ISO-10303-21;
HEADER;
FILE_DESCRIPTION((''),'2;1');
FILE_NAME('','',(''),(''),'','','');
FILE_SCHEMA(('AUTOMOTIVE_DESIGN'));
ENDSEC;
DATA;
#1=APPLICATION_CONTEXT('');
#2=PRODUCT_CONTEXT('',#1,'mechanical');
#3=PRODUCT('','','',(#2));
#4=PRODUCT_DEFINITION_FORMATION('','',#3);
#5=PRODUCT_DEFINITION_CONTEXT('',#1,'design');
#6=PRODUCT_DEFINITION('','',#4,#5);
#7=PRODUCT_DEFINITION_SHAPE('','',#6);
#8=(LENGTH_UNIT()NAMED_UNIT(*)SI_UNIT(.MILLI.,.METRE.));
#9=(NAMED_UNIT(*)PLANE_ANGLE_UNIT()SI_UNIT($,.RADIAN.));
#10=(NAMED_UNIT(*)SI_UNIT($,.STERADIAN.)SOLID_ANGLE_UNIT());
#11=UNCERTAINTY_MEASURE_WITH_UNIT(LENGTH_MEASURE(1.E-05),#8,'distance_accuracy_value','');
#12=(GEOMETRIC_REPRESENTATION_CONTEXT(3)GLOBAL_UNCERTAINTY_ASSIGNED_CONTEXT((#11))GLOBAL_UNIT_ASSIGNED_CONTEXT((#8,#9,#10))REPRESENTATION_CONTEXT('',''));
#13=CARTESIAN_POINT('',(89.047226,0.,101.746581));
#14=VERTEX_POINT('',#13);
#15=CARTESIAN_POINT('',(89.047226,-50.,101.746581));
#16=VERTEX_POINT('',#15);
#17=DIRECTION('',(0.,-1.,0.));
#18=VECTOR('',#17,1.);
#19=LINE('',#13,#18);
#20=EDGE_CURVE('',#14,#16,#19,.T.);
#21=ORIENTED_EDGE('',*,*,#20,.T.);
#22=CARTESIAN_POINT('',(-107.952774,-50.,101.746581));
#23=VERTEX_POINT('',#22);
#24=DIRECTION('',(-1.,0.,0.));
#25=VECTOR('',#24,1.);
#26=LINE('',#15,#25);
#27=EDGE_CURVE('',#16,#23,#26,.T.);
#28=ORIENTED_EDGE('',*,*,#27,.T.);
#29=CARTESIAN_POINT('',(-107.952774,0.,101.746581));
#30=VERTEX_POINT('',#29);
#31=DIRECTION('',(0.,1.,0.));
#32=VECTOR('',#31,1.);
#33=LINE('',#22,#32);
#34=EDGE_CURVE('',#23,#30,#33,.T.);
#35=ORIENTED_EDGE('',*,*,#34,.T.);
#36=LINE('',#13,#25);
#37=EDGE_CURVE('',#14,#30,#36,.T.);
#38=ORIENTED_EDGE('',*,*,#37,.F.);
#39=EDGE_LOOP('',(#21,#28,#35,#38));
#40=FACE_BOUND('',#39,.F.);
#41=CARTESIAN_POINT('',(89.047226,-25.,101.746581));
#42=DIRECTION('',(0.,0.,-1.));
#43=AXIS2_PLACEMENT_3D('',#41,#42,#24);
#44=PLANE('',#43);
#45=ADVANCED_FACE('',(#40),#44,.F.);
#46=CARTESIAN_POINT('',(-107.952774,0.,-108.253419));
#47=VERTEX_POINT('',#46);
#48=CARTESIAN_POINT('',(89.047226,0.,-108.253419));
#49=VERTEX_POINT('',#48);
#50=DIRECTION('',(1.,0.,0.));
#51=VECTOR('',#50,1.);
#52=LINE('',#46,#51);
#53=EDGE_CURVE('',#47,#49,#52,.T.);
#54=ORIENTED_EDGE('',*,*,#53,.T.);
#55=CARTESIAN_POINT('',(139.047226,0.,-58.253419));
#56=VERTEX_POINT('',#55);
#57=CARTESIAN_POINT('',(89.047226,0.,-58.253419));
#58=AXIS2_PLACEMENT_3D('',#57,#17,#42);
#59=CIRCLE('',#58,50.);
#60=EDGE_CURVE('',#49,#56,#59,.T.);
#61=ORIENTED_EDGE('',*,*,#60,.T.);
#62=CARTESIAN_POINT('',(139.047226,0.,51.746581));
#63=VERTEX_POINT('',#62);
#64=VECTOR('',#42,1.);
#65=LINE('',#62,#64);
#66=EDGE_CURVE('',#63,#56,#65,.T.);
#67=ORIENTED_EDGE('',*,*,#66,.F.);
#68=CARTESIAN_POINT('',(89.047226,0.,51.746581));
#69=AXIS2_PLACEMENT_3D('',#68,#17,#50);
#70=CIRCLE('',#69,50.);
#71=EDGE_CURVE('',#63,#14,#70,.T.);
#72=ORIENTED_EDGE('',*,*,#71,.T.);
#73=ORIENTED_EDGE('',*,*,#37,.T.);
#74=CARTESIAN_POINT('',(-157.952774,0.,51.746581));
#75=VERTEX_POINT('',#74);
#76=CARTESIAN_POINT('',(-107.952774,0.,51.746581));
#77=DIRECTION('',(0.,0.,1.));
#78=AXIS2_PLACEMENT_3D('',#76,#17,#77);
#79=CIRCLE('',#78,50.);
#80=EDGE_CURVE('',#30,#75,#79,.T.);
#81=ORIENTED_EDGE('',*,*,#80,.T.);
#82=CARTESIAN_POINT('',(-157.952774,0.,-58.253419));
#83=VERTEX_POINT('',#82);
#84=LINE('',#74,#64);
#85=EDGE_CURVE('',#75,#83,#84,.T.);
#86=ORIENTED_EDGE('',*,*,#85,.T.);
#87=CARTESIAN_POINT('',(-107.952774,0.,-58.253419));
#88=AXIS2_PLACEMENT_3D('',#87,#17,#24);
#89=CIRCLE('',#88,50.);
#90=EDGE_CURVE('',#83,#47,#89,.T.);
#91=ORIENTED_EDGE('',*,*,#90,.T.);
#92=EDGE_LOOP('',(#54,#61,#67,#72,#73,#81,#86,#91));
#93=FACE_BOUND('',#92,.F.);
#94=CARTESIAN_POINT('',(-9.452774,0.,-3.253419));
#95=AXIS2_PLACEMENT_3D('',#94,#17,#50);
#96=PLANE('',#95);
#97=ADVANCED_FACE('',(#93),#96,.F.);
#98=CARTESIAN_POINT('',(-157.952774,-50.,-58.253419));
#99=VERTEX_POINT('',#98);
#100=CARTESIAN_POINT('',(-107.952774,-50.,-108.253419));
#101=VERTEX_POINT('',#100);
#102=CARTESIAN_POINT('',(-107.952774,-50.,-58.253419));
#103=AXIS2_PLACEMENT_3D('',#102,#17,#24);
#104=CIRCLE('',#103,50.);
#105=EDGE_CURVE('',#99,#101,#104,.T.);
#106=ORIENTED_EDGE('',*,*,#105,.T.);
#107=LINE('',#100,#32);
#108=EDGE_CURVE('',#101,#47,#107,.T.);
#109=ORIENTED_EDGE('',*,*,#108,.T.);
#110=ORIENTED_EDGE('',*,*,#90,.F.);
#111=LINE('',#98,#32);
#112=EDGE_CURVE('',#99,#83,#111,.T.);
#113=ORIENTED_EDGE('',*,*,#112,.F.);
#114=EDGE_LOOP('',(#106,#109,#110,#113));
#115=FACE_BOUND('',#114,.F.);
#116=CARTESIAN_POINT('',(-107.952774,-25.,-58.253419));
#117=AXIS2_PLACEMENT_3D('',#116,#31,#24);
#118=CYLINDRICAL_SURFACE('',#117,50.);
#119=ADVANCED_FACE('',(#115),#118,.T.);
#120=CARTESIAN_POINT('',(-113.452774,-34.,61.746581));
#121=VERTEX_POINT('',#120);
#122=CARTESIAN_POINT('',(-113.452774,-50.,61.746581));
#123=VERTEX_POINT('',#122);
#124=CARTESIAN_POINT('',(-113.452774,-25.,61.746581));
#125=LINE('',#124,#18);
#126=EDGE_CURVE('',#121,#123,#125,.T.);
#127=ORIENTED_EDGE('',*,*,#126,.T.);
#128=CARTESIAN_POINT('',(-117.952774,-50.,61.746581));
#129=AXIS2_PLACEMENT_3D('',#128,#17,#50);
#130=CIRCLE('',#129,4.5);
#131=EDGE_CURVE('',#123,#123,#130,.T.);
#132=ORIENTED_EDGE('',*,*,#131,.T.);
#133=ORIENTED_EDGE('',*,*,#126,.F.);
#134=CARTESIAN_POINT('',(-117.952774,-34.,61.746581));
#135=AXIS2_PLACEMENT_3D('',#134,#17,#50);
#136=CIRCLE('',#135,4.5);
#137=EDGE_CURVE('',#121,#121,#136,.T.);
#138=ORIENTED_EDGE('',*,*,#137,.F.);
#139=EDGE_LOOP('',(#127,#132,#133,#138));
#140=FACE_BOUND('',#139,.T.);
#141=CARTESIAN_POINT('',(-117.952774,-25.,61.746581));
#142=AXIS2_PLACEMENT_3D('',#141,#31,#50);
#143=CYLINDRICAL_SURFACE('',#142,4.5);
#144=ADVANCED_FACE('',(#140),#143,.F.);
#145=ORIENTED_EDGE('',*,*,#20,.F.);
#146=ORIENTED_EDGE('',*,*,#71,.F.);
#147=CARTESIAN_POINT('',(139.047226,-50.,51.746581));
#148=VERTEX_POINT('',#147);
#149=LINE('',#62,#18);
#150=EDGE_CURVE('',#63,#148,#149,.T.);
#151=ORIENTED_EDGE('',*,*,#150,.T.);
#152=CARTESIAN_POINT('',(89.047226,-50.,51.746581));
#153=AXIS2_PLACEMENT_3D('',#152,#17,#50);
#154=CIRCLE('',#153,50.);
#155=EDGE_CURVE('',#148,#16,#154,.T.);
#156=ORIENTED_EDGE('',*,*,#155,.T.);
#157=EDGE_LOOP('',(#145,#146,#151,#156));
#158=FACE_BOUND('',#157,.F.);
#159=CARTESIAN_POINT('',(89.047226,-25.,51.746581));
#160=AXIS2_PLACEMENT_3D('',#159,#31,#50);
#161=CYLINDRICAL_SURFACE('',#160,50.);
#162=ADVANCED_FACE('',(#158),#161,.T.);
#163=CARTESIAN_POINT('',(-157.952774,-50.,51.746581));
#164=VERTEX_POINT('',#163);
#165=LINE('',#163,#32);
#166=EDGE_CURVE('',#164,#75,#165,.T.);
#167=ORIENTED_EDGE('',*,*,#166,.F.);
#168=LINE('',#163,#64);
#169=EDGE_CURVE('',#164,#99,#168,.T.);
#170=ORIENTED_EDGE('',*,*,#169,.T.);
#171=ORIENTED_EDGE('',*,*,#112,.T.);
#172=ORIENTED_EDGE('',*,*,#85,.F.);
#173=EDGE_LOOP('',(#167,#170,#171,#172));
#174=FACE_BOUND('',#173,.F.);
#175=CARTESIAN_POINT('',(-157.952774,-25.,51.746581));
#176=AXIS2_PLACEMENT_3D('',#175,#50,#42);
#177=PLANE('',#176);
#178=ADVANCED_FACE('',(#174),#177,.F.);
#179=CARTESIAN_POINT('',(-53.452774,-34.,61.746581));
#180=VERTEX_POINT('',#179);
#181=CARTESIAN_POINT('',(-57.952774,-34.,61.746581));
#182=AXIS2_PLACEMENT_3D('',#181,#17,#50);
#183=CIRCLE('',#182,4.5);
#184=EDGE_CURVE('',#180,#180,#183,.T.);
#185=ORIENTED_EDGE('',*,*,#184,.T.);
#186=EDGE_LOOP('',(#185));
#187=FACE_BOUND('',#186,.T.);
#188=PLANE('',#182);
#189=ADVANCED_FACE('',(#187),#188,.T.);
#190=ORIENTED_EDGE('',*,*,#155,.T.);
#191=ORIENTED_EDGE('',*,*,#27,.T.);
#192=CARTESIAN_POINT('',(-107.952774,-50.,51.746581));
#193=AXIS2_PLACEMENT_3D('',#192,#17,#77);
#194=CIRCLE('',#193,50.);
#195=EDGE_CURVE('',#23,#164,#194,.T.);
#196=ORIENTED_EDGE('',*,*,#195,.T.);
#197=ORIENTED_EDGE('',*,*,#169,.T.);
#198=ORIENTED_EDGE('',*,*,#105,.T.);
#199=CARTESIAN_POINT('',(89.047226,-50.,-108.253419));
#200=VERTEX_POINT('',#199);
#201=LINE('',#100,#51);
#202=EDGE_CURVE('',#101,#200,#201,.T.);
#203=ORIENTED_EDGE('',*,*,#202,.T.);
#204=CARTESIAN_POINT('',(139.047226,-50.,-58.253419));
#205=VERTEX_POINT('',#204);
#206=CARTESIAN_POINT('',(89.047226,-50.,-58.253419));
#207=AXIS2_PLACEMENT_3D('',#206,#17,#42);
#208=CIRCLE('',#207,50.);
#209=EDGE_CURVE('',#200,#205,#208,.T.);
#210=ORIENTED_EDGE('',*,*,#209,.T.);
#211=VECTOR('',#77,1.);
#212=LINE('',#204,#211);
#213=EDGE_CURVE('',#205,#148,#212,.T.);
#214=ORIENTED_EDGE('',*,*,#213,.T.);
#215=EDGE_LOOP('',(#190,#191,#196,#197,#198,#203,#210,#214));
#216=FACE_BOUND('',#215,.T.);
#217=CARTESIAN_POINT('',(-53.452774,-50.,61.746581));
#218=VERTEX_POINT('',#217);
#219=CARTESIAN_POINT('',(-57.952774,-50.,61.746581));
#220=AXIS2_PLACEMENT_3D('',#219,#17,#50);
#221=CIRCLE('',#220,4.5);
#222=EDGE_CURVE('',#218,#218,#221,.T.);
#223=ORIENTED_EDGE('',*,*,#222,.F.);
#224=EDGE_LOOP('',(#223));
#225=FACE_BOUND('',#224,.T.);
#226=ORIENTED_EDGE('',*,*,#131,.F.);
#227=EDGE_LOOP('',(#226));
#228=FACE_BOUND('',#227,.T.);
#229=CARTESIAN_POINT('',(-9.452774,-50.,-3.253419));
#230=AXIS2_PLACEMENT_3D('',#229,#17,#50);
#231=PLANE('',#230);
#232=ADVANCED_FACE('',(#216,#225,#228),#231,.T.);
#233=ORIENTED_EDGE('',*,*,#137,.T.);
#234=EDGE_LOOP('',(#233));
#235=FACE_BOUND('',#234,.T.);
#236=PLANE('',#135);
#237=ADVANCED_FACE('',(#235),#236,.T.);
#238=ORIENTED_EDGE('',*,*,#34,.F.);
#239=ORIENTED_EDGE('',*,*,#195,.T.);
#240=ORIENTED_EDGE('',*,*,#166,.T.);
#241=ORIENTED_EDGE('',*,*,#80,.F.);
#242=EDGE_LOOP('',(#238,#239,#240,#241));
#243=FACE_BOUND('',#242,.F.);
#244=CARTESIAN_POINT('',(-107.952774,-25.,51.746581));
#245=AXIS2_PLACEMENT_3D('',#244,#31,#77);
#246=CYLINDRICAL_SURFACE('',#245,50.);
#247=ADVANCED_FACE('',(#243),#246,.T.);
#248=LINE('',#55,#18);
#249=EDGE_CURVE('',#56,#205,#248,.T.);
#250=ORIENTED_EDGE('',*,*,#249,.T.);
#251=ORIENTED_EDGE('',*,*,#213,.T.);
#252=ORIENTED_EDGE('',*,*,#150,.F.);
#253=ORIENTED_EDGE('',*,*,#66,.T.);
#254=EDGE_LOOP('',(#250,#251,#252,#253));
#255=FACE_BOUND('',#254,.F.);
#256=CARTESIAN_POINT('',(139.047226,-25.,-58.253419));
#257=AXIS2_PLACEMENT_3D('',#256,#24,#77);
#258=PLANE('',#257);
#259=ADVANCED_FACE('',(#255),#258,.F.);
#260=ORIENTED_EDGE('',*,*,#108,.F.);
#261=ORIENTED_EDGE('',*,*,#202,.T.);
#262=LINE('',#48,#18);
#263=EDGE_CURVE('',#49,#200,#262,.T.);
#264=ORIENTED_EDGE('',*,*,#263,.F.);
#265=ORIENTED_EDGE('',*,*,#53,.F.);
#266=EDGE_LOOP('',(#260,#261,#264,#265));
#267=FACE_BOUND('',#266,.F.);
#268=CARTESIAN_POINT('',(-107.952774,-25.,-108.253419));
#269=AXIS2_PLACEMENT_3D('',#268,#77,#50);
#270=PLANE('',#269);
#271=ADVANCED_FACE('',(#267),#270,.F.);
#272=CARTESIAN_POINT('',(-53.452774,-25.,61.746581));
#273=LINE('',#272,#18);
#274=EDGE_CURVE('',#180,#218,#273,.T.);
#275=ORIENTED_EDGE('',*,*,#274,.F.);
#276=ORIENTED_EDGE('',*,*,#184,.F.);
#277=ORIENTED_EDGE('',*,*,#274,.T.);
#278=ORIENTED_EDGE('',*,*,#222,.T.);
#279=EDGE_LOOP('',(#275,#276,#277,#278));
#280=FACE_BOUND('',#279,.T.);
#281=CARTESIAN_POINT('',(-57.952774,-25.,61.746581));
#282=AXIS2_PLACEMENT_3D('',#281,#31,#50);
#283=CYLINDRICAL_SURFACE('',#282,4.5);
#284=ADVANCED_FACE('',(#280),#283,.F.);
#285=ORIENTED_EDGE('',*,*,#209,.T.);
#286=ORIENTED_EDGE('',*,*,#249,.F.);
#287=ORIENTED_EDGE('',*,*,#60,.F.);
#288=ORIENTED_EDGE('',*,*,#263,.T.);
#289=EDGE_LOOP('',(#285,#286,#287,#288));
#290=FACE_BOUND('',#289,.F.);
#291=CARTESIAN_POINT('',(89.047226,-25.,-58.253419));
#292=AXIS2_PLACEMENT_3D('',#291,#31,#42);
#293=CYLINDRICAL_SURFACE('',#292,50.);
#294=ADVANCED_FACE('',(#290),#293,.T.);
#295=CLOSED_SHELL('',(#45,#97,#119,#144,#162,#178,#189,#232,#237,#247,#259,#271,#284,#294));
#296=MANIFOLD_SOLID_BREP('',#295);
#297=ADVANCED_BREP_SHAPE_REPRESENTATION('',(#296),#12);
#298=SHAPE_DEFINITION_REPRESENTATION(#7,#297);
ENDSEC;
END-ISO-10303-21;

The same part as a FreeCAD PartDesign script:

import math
import FreeCAD as App
import Part
import Sketcher
from FreeCAD import Vector
Q = App.Units.Quantity

doc = App.newDocument("Part")
body = doc.addObject("PartDesign::Body", "Body")

# Sketch on XZ plane
sketch1 = body.newObject("Sketcher::SketchObject", "Sketch")
sketch1.AttachmentSupport = (doc.getObject("XZ_Plane"), [""])
sketch1.MapMode = "FlatFace"
sketch1.addGeometry([
    Part.LineSegment(Vector(89, 102, 0), Vector(-108, 102, 0)),  # 0
    Part.ArcOfCircle(Part.Circle(Vector(-108, 52, 0), Vector(0, 0, 1), 50), math.radians(90), math.radians(180)),  # 1
    Part.LineSegment(Vector(-158, 52, 0), Vector(-158, -58, 0)),  # 2
    Part.ArcOfCircle(Part.Circle(Vector(-108, -58, 0), Vector(0, 0, 1), 50), math.radians(180), math.radians(270)),  # 3
    Part.LineSegment(Vector(-108, -108, 0), Vector(89, -108, 0)),  # 4
    Part.ArcOfCircle(Part.Circle(Vector(89, -58, 0), Vector(0, 0, 1), 50), math.radians(-90), math.radians(0)),  # 5
    Part.LineSegment(Vector(139, -58, 0), Vector(139, 52, 0)),  # 6
    Part.ArcOfCircle(Part.Circle(Vector(89, 52, 0), Vector(0, 0, 1), 50), math.radians(0), math.radians(90)),  # 7
], False)
sketch1.addConstraint([
    Sketcher.Constraint("Tangent", 0, 2, 1, 1),
    Sketcher.Constraint("Tangent", 1, 2, 2, 1),
    Sketcher.Constraint("Tangent", 2, 2, 3, 1),
    Sketcher.Constraint("Tangent", 3, 2, 4, 1),
    Sketcher.Constraint("Tangent", 4, 2, 5, 1),
    Sketcher.Constraint("Tangent", 5, 2, 6, 1),
    Sketcher.Constraint("Tangent", 6, 2, 7, 1),
    Sketcher.Constraint("Tangent", 7, 2, 0, 1),
    Sketcher.Constraint("Horizontal", 0),
    Sketcher.Constraint("Vertical", 2),
    Sketcher.Constraint("Horizontal", 4),
    Sketcher.Constraint("Vertical", 6),
    Sketcher.Constraint("Equal", 1, 3),
    Sketcher.Constraint("Equal", 3, 5),
    Sketcher.Constraint("Equal", 5, 7),
    Sketcher.Constraint("Radius", 1, Q("50 mm")),
    Sketcher.Constraint("DistanceX", 0, 2, 0, 1, Q("197 mm")),
    Sketcher.Constraint("DistanceY", 2, 2, 2, 1, Q("110 mm")),
    Sketcher.Constraint("DistanceY", -1, 1, 1, 3, Q("51.746581 mm")),
    Sketcher.Constraint("DistanceX", 1, 3, -1, 1, Q("107.952774 mm")),
])
pad1 = body.newObject("PartDesign::Pad", "Pad")
pad1.Profile = sketch1
pad1.Length = 9

# Sketch on XZ plane
sketch2 = body.newObject("Sketcher::SketchObject", "Sketch001")
sketch2.AttachmentSupport = (doc.getObject("XZ_Plane"), [""])
sketch2.MapMode = "FlatFace"
sketch2.AttachmentOffset = App.Placement(Vector(0, 0, 9), App.Rotation())
sketch2.addGeometry([
    Part.Circle(Vector(-118, 61.7, 0), Vector(0, 0, 1), 4.5),
    Part.Circle(Vector(-58, 61.7, 0), Vector(0, 0, 1), 4.5),
], False)
sketch2.addConstraint([
    Sketcher.Constraint("Equal", 0, 1),
    Sketcher.Constraint("Horizontal", 0, 3, 1, 3),
    Sketcher.Constraint("Diameter", 0, Q("9 mm")),
    Sketcher.Constraint("DistanceX", 0, 3, 1, 3, Q("60 mm")),
    Sketcher.Constraint("DistanceY", -1, 1, 0, 3, Q("61.746581 mm")),
    Sketcher.Constraint("DistanceX", 0, 3, -1, 1, Q("117.952774 mm")),
])
pad2 = body.newObject("PartDesign::Pad", "Pad001")
pad2.Profile = sketch2
pad2.Length = 25

# Sketch on XZ plane
sketch3 = body.newObject("Sketcher::SketchObject", "Sketch002")
sketch3.AttachmentSupport = (doc.getObject("XZ_Plane"), [""])
sketch3.MapMode = "FlatFace"
sketch3.AttachmentOffset = App.Placement(Vector(0, 0, 9), App.Rotation())
sketch3.addGeometry([
    Part.LineSegment(Vector(139, 57, 0), Vector(62, 57, 0)),  # 0
    Part.LineSegment(Vector(62, 57, 0), Vector(62, 26, 0)),  # 1
    Part.LineSegment(Vector(62, 26, 0), Vector(139, 26, 0)),  # 2
    Part.LineSegment(Vector(139, 26, 0), Vector(139, 52, 0)),  # 3
    Part.ArcOfCircle(Part.Circle(Vector(89, 52, 0), Vector(0, 0, 1), 50), math.radians(0), math.radians(6.01)),  # 4
], False)
sketch3.addConstraint([
    Sketcher.Constraint("Coincident", 0, 2, 1, 1),
    Sketcher.Constraint("Coincident", 1, 2, 2, 1),
    Sketcher.Constraint("Coincident", 2, 2, 3, 1),
    Sketcher.Constraint("Tangent", 3, 2, 4, 1),
    Sketcher.Constraint("Coincident", 4, 2, 0, 1),
    Sketcher.Constraint("Horizontal", 0),
    Sketcher.Constraint("Vertical", 1),
    Sketcher.Constraint("Horizontal", 2),
    Sketcher.Constraint("Vertical", 3),
    Sketcher.Constraint("Radius", 4, Q("50 mm")),
    Sketcher.Constraint("DistanceX", 0, 2, 0, 1, Q("77.216073 mm")),
    Sketcher.Constraint("DistanceX", 2, 1, 2, 2, Q("77.490548 mm")),
    Sketcher.Constraint("DistanceY", 1, 2, 1, 1, Q("30.802976 mm")),
    Sketcher.Constraint("DistanceY", -1, 1, 4, 3, Q("51.746581 mm")),
    Sketcher.Constraint("DistanceX", -1, 1, 0, 2, Q("61.556678 mm")),
])
pocket1 = body.newObject("PartDesign::Pocket", "Pocket")
pocket1.Profile = sketch3
pocket1.Length = 25

# Sketch on XZ plane
sketch4 = body.newObject("Sketcher::SketchObject", "Sketch003")
sketch4.AttachmentSupport = (doc.getObject("XZ_Plane"), [""])
sketch4.MapMode = "FlatFace"
sketch4.addGeometry([
    Part.ArcOfCircle(Part.Circle(Vector(89, 52, 0), Vector(0, 0, 1), 50), math.radians(0), math.radians(90)),  # 0
    Part.LineSegment(Vector(89, 102, 0), Vector(-108, 102, 0)),  # 1
    Part.ArcOfCircle(Part.Circle(Vector(-108, 52, 0), Vector(0, 0, 1), 50), math.radians(90), math.radians(180)),  # 2
    Part.LineSegment(Vector(-158, 52, 0), Vector(-158, -58, 0)),  # 3
    Part.ArcOfCircle(Part.Circle(Vector(-108, -58, 0), Vector(0, 0, 1), 50), math.radians(180), math.radians(270)),  # 4
    Part.LineSegment(Vector(-108, -108, 0), Vector(89, -108, 0)),  # 5
    Part.ArcOfCircle(Part.Circle(Vector(89, -58, 0), Vector(0, 0, 1), 50), math.radians(-90), math.radians(0)),  # 6
    Part.LineSegment(Vector(139, -58, 0), Vector(139, 52, 0)),  # 7
], False)
sketch4.addConstraint([
    Sketcher.Constraint("Tangent", 0, 2, 1, 1),
    Sketcher.Constraint("Tangent", 1, 2, 2, 1),
    Sketcher.Constraint("Tangent", 2, 2, 3, 1),
    Sketcher.Constraint("Tangent", 3, 2, 4, 1),
    Sketcher.Constraint("Tangent", 4, 2, 5, 1),
    Sketcher.Constraint("Tangent", 5, 2, 6, 1),
    Sketcher.Constraint("Tangent", 6, 2, 7, 1),
    Sketcher.Constraint("Tangent", 7, 2, 0, 1),
    Sketcher.Constraint("Horizontal", 1),
    Sketcher.Constraint("Vertical", 3),
    Sketcher.Constraint("Horizontal", 5),
    Sketcher.Constraint("Vertical", 7),
    Sketcher.Constraint("Equal", 0, 2),
    Sketcher.Constraint("Equal", 2, 4),
    Sketcher.Constraint("Equal", 4, 6),
    Sketcher.Constraint("Radius", 0, Q("50 mm")),
    Sketcher.Constraint("DistanceX", 1, 2, 1, 1, Q("197 mm")),
    Sketcher.Constraint("DistanceY", 3, 2, 3, 1, Q("110 mm")),
    Sketcher.Constraint("DistanceY", -1, 1, 0, 3, Q("51.746581 mm")),
    Sketcher.Constraint("DistanceX", -1, 1, 0, 3, Q("89.047226 mm")),
])
pad3 = body.newObject("PartDesign::Pad", "Pad002")
pad3.Profile = sketch4
pad3.Length = 25

# Sketch on XZ plane
sketch5 = body.newObject("Sketcher::SketchObject", "Sketch004")
sketch5.AttachmentSupport = (doc.getObject("XZ_Plane"), [""])
sketch5.MapMode = "FlatFace"
sketch5.AttachmentOffset = App.Placement(Vector(0, 0, 25), App.Rotation())
sketch5.addGeometry([
    Part.LineSegment(Vector(-108, -108.3, 0), Vector(89, -108.3, 0)),  # 0
    Part.ArcOfCircle(Part.Circle(Vector(89, -58.3, 0), Vector(0, 0, 1), 50), math.radians(-90), math.radians(0)),  # 1
    Part.LineSegment(Vector(139, -58.3, 0), Vector(139, 51.7, 0)),  # 2
    Part.ArcOfCircle(Part.Circle(Vector(89, 51.7, 0), Vector(0, 0, 1), 50), math.radians(0), math.radians(90)),  # 3
    Part.LineSegment(Vector(89, 101.7, 0), Vector(-108, 101.7, 0)),  # 4
    Part.ArcOfCircle(Part.Circle(Vector(-108, 51.7, 0), Vector(0, 0, 1), 50), math.radians(90), math.radians(180)),  # 5
    Part.LineSegment(Vector(-158, 51.7, 0), Vector(-158, -58.3, 0)),  # 6
    Part.ArcOfCircle(Part.Circle(Vector(-108, -58.3, 0), Vector(0, 0, 1), 50), math.radians(180), math.radians(270)),  # 7
    Part.Circle(Vector(-118, 61.7, 0), Vector(0, 0, 1), 4.5),  # 8
    Part.Circle(Vector(-58, 61.7, 0), Vector(0, 0, 1), 4.5),  # 9
], False)
sketch5.addConstraint([
    Sketcher.Constraint("Tangent", 0, 2, 1, 1),
    Sketcher.Constraint("Tangent", 1, 2, 2, 1),
    Sketcher.Constraint("Tangent", 2, 2, 3, 1),
    Sketcher.Constraint("Tangent", 3, 2, 4, 1),
    Sketcher.Constraint("Tangent", 4, 2, 5, 1),
    Sketcher.Constraint("Tangent", 5, 2, 6, 1),
    Sketcher.Constraint("Tangent", 6, 2, 7, 1),
    Sketcher.Constraint("Tangent", 7, 2, 0, 1),
    Sketcher.Constraint("Horizontal", 0),
    Sketcher.Constraint("Vertical", 2),
    Sketcher.Constraint("Horizontal", 4),
    Sketcher.Constraint("Vertical", 6),
    Sketcher.Constraint("Equal", 1, 3),
    Sketcher.Constraint("Equal", 3, 5),
    Sketcher.Constraint("Equal", 5, 7),
    Sketcher.Constraint("Equal", 8, 9),
    Sketcher.Constraint("Horizontal", 8, 3, 9, 3),
    Sketcher.Constraint("Diameter", 8, Q("9 mm")),
    Sketcher.Constraint("Radius", 1, Q("50 mm")),
    Sketcher.Constraint("DistanceX", 0, 1, 0, 2, Q("197 mm")),
    Sketcher.Constraint("DistanceY", 2, 1, 2, 2, Q("110 mm")),
    Sketcher.Constraint("DistanceX", 8, 3, 5, 3, Q("10 mm")),
    Sketcher.Constraint("DistanceY", 5, 3, 8, 3, Q("10 mm")),
    Sketcher.Constraint("DistanceX", 5, 3, 9, 3, Q("50 mm")),
    Sketcher.Constraint("DistanceY", 1, 3, -1, 1, Q("58.253419 mm")),
    Sketcher.Constraint("DistanceX", -1, 1, 1, 3, Q("89.047226 mm")),
])
pad4 = body.newObject("PartDesign::Pad", "Pad003")
pad4.Profile = sketch5
pad4.Length = 25

doc.recompute()
